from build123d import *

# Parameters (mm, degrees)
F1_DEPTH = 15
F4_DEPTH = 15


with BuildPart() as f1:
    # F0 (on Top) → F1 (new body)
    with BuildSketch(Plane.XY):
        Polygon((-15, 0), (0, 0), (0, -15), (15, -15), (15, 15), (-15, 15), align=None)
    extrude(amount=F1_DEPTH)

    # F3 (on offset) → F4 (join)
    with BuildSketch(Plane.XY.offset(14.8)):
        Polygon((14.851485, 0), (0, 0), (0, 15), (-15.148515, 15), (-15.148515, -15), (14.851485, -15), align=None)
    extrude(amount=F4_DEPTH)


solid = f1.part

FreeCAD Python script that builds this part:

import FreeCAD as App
import Part
import Sketcher
from FreeCAD import Vector
Q = App.Units.Quantity


def add_polygon(sketch, points):
    """Adds a closed chain of lines whose ends are joined by coincident constraints."""
    first, n = sketch.GeometryCount, len(points)
    for a, b in zip(points, points[1:] + points[:1]):
        sketch.addGeometry(Part.LineSegment(App.Vector(*a, 0), App.Vector(*b, 0)), False)
    for i in range(n):
        sketch.addConstraint(Sketcher.Constraint("Coincident", first + i, 2, first + (i + 1) % n, 1))

doc = App.newDocument("Part")
body = doc.addObject("PartDesign::Body", "Body")

# Sketch on XY plane
sketch1 = body.newObject("Sketcher::SketchObject", "Sketch")
sketch1.AttachmentSupport = (doc.getObject("XY_Plane"), [""])
sketch1.MapMode = "FlatFace"
add_polygon(sketch1, [(-15, 0), (0, 0), (0, -15), (15, -15), (15, 15), (-15, 15)])  # lines 0-5
sketch1.addConstraint([
    Sketcher.Constraint("Horizontal", 0),
    Sketcher.Constraint("Vertical", 1),
    Sketcher.Constraint("Horizontal", 2),
    Sketcher.Constraint("Vertical", 3),
    Sketcher.Constraint("Horizontal", 4),
    Sketcher.Constraint("Vertical", 5),
    Sketcher.Constraint("Coincident", 0, 2, -1, 1),
    Sketcher.Constraint("Symmetric", 2, 2, 4, 2, -1, 1),
    Sketcher.Constraint("Equal", 2, 1),
    Sketcher.Constraint("DistanceX", 0, 1, 0, 2, Q("15 mm")),
])
pad1 = body.newObject("PartDesign::Pad", "Pad")
pad1.Profile = sketch1
pad1.Length = 15

# Sketch on XY plane
sketch2 = body.newObject("Sketcher::SketchObject", "Sketch001")
sketch2.AttachmentSupport = (doc.getObject("XY_Plane"), [""])
sketch2.MapMode = "FlatFace"
sketch2.AttachmentOffset = App.Placement(Vector(0, 0, 14.8), App.Rotation())
add_polygon(sketch2, [(14.851485, 0), (0, 0), (0, 15), (-15.148515, 15), (-15.148515, -15), (14.851485, -15)])  # lines 0-5
sketch2.addConstraint([
    Sketcher.Constraint("Horizontal", 0),
    Sketcher.Constraint("Vertical", 1),
    Sketcher.Constraint("Horizontal", 2),
    Sketcher.Constraint("Vertical", 3),
    Sketcher.Constraint("Horizontal", 4),
    Sketcher.Constraint("Vertical", 5),
    Sketcher.Constraint("Coincident", 0, 2, -1, 1),
    Sketcher.Constraint("Equal", 4, 3),
    Sketcher.Constraint("Equal", 1, 5),
    Sketcher.Constraint("DistanceX", 4, 1, 4, 2, Q("30 mm")),
    Sketcher.Constraint("DistanceX", 0, 2, 0, 1, Q("14.851485 mm")),
])
pad2 = body.newObject("PartDesign::Pad", "Pad001")
pad2.Profile = sketch2
pad2.Length = 15

doc.recompute()
